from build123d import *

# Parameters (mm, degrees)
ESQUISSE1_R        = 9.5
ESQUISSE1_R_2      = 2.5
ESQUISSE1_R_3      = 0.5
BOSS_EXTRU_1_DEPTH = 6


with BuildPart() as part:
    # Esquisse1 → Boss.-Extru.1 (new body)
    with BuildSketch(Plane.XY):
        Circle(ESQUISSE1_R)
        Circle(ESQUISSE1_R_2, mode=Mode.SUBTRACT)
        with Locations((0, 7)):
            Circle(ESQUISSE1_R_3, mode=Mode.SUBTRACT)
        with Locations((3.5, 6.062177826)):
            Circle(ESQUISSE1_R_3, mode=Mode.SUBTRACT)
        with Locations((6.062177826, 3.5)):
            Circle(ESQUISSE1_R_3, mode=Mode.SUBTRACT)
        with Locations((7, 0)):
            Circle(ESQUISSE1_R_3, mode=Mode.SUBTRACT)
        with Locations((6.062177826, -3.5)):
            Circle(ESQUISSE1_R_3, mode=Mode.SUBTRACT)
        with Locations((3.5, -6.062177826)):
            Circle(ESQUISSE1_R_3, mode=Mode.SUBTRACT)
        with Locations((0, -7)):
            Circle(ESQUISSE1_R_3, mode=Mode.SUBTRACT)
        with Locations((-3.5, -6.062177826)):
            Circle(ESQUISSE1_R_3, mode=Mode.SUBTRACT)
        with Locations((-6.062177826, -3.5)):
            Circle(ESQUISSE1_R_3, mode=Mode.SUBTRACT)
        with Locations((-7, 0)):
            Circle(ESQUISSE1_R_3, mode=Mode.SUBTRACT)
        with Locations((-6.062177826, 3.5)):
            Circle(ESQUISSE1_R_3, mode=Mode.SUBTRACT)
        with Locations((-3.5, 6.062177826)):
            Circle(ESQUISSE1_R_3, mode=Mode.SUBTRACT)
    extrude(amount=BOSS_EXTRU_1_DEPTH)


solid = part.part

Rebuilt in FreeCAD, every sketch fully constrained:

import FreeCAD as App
import Part
import Sketcher

V = App.Vector

doc = App.newDocument("Part")
body = doc.addObject("PartDesign::Body", "Body")

# Sketch on XY plane
sketch1 = doc.addObject("Sketcher::SketchObject", "Sketch")
body.addObject(sketch1)
sketch1.AttachmentSupport = (doc.XY_Plane, [""])
sketch1.MapMode = "FlatFace"
sketch1.addGeometry(Part.Circle(V(0, 0, 0), V(0, 0, 1), 9.5), False)
sketch1.addGeometry(Part.Circle(V(-3.5, -6.1, 0), V(0, 0, 1), 0.5), False)
sketch1.addGeometry(Part.Circle(V(-6.1, -3.5, 0), V(0, 0, 1), 0.5), False)
sketch1.addGeometry(Part.Circle(V(0, -7, 0), V(0, 0, 1), 0.5), False)
sketch1.addGeometry(Part.Circle(V(3.5, -6.1, 0), V(0, 0, 1), 0.5), False)
sketch1.addGeometry(Part.Circle(V(6.1, -3.5, 0), V(0, 0, 1), 0.5), False)
sketch1.addGeometry(Part.Circle(V(-7, 0, 0), V(0, 0, 1), 0.5), False)
sketch1.addGeometry(Part.Circle(V(-6.1, 3.5, 0), V(0, 0, 1), 0.5), False)
sketch1.addGeometry(Part.Circle(V(-3.5, 6.1, 0), V(0, 0, 1), 0.5), False)
sketch1.addGeometry(Part.Circle(V(0, 0, 0), V(0, 0, 1), 2.5), False)
sketch1.addGeometry(Part.Circle(V(7, 0, 0), V(0, 0, 1), 0.5), False)
sketch1.addGeometry(Part.Circle(V(6.1, 3.5, 0), V(0, 0, 1), 0.5), False)
sketch1.addGeometry(Part.Circle(V(0, 7, 0), V(0, 0, 1), 0.5), False)
sketch1.addGeometry(Part.Circle(V(3.5, 6.1, 0), V(0, 0, 1), 0.5), False)
sketch1.addConstraint(Sketcher.Constraint("Coincident", 0, 3, -1, 1))
sketch1.addConstraint(Sketcher.Constraint("Coincident", 9, 3, -1, 1))
sketch1.addConstraint(Sketcher.Constraint("Equal", 1, 2))
sketch1.addConstraint(Sketcher.Constraint("Equal", 2, 3))
sketch1.addConstraint(Sketcher.Constraint("Equal", 3, 4))
sketch1.addConstraint(Sketcher.Constraint("Equal", 4, 5))
sketch1.addConstraint(Sketcher.Constraint("Equal", 5, 6))
sketch1.addConstraint(Sketcher.Constraint("Equal", 6, 7))
sketch1.addConstraint(Sketcher.Constraint("Equal", 7, 8))
sketch1.addConstraint(Sketcher.Constraint("Equal", 8, 10))
sketch1.addConstraint(Sketcher.Constraint("Equal", 10, 11))
sketch1.addConstraint(Sketcher.Constraint("Equal", 11, 12))
sketch1.addConstraint(Sketcher.Constraint("Equal", 12, 13))
sketch1.addConstraint(Sketcher.Constraint("Symmetric", 5, 3, 7, 3, -1, 1))
sketch1.addConstraint(Sketcher.Constraint("Symmetric", 4, 3, 8, 3, -1, 1))
sketch1.addConstraint(Sketcher.Constraint("Symmetric", 6, 3, 10, 3, -1, 1))
sketch1.addConstraint(Sketcher.Constraint("Symmetric", 2, 3, 11, 3, -1, 1))
sketch1.addConstraint(Sketcher.Constraint("Symmetric", 3, 3, 12, 3, -1, 1))
sketch1.addConstraint(Sketcher.Constraint("Symmetric", 1, 3, 13, 3, -1, 1))
sketch1.addConstraint(Sketcher.Constraint("Symmetric", 1, 3, 4, 3, -2))
sketch1.addConstraint(Sketcher.Constraint("Symmetric", 2, 3, 5, 3, -2))
sketch1.addConstraint(Sketcher.Constraint("PointOnObject", 3, 3, -2))
sketch1.addConstraint(Sketcher.Constraint("PointOnObject", 6, 3, -1))
sketch1.addConstraint(Sketcher.Constraint("Diameter", 0, 19.0))
sketch1.addConstraint(Sketcher.Constraint("Diameter", 1, 1.0))
sketch1.addConstraint(Sketcher.Constraint("Diameter", 9, 5.0))
sketch1.addConstraint(Sketcher.Constraint("DistanceY", 3, 3, -1, 1, 7.0))
sketch1.addConstraint(Sketcher.Constraint("DistanceX", 6, 3, -1, 1, 7.0))
sketch1.addConstraint(Sketcher.Constraint("DistanceX", 1, 3, 4, 3, 7.0))
sketch1.addConstraint(Sketcher.Constraint("DistanceY", 2, 3, 7, 3, 7.0))
sketch1.addConstraint(Sketcher.Constraint("DistanceY", 1, 3, -1, 1, 6.062178))
sketch1.addConstraint(Sketcher.Constraint("DistanceX", 2, 3, -1, 1, 6.062178))
pad1 = doc.addObject("PartDesign::Pad", "Pad")
body.addObject(pad1)
pad1.Profile = sketch1
pad1.Length = 6

doc.recompute()
